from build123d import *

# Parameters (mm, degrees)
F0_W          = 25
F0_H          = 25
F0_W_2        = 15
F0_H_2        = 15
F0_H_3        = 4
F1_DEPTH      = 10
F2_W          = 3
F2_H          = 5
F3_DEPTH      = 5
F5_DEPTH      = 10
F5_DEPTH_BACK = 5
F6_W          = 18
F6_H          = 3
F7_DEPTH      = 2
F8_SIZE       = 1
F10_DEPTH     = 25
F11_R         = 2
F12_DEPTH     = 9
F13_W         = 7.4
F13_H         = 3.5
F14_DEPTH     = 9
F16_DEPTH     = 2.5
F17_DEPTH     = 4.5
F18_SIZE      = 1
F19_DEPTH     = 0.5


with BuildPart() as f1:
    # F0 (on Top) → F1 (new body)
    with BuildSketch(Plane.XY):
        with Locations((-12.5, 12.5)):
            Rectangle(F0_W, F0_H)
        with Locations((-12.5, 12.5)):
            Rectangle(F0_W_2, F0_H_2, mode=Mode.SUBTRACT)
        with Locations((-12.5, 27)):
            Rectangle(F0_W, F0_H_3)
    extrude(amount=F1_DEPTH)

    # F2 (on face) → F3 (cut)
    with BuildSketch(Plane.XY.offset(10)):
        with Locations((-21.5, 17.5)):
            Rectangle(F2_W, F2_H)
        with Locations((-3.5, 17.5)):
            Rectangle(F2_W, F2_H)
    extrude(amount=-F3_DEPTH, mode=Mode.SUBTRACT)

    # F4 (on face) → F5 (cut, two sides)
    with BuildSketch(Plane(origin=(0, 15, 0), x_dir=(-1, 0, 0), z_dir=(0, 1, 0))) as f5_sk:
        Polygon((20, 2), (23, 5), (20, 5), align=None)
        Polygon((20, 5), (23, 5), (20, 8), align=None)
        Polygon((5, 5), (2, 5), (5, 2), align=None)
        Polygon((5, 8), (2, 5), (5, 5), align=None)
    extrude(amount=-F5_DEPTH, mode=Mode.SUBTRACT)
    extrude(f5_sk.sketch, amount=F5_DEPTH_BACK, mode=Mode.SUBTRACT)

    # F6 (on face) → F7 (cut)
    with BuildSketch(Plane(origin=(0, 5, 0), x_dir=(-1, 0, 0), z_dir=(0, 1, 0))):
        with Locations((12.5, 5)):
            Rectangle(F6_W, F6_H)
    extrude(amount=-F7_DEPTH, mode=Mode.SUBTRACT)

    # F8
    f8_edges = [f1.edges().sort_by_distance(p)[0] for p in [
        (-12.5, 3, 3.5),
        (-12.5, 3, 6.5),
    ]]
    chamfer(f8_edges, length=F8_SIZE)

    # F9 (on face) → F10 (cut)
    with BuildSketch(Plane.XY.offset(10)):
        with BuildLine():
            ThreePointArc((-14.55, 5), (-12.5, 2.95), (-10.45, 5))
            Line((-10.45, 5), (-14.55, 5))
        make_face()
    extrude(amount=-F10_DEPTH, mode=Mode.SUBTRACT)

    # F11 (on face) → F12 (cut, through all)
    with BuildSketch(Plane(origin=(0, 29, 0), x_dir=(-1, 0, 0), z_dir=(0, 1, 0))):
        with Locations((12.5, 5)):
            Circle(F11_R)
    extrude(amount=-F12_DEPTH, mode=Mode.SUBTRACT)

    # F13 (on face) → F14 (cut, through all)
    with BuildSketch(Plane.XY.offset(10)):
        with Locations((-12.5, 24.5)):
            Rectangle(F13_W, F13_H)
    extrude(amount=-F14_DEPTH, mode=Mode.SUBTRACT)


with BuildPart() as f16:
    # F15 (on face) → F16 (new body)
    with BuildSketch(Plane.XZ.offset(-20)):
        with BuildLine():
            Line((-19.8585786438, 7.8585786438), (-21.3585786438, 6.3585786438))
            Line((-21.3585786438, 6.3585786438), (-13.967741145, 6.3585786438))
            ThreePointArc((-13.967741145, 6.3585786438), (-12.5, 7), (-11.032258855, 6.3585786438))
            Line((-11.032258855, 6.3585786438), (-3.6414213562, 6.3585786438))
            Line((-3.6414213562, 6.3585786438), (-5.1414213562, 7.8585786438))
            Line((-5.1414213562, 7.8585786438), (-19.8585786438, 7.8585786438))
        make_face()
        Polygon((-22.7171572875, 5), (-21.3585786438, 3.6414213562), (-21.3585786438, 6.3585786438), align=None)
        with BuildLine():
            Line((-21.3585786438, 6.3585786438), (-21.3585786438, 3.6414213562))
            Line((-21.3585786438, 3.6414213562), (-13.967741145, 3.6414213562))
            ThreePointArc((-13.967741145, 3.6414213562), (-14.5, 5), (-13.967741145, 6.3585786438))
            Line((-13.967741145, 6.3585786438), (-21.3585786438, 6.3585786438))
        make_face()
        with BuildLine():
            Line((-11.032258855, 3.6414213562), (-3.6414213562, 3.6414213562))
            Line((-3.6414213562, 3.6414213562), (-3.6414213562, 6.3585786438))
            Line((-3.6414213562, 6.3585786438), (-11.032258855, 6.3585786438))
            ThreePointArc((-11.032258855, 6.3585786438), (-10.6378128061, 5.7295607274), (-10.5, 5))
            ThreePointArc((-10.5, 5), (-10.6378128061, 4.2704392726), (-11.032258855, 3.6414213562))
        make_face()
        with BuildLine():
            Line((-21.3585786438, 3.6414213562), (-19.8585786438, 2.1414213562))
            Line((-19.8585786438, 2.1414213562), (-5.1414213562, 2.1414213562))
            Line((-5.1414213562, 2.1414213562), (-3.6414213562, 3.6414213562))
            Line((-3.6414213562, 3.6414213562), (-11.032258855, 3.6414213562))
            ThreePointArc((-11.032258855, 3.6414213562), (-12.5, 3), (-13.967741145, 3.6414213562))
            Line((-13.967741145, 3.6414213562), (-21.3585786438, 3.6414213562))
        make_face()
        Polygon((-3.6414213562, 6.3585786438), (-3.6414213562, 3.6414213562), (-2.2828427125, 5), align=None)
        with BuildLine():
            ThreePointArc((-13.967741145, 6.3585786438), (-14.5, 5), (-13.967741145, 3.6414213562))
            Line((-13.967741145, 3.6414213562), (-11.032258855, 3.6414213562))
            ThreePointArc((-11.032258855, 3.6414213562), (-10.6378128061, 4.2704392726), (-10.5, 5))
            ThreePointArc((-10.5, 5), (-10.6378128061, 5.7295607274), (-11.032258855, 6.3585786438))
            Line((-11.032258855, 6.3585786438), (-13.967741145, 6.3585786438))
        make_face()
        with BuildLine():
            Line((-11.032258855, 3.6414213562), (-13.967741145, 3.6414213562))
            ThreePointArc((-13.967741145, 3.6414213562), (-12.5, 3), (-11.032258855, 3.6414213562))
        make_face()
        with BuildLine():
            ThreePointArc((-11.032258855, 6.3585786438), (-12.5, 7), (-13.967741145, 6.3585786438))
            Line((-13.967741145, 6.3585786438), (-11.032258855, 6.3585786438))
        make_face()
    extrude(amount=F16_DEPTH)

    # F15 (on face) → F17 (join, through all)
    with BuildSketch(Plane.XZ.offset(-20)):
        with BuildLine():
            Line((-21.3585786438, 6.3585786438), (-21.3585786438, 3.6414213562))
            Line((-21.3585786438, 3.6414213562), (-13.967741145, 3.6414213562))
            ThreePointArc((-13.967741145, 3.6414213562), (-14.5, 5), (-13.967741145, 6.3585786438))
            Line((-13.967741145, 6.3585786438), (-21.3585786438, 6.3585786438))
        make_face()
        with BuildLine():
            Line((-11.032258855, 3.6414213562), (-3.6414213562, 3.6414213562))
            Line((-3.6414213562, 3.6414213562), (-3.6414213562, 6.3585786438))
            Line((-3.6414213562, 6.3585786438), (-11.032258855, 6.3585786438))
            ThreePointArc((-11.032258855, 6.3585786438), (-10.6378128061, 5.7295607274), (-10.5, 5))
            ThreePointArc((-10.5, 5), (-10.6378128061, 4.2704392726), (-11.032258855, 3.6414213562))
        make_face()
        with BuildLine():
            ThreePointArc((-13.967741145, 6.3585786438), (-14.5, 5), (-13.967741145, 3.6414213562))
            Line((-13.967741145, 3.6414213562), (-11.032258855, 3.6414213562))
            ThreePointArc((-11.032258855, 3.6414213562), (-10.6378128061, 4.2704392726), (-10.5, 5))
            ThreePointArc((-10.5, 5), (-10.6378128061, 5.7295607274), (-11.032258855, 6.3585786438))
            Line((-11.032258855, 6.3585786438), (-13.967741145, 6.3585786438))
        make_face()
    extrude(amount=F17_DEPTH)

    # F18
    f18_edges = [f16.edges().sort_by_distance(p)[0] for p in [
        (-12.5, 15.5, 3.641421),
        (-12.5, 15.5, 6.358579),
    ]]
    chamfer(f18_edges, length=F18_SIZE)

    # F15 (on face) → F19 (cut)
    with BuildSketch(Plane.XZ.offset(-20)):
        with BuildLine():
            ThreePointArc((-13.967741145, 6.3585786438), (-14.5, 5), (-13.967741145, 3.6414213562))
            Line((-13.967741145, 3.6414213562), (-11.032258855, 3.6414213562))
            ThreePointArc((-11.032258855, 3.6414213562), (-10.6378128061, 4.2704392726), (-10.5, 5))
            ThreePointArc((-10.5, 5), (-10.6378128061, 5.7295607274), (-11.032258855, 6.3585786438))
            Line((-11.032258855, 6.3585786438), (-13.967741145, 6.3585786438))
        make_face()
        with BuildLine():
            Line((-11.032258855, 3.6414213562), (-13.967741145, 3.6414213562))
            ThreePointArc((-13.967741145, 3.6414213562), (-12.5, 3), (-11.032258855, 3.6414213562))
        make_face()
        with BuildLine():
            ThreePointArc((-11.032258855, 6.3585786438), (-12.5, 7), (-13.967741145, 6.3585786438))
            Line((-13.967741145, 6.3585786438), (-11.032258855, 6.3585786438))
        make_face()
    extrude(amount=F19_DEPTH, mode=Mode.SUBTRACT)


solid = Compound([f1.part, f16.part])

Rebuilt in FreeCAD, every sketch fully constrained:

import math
import FreeCAD as App
import Part
import Sketcher
from FreeCAD import Vector


def edges_at(feature, points):
    """Names of the edges that pass closest to the given points."""
    edges = feature.Shape.Edges
    near = lambda p: min(range(len(edges)), key=lambda i: edges[i].distToShape(Part.Vertex(*p))[0])
    return sorted({f"Edge{near(p) + 1}" for p in points})

doc = App.newDocument("Part")
body = doc.addObject("PartDesign::Body", "Body")

# Sketch on XY plane
sketch1 = doc.addObject("Sketcher::SketchObject", "Sketch")
body.addObject(sketch1)
sketch1.AttachmentSupport = (doc.XY_Plane, [""])
sketch1.MapMode = "FlatFace"
sketch1.addGeometry(Part.LineSegment(Vector(-25, 0, 0), Vector(0, 0, 0)), False)
sketch1.addGeometry(Part.LineSegment(Vector(0, 0, 0), Vector(0, 29, 0)), False)
sketch1.addGeometry(Part.LineSegment(Vector(0, 29, 0), Vector(-25, 29, 0)), False)
sketch1.addGeometry(Part.LineSegment(Vector(-25, 29, 0), Vector(-25, 0, 0)), False)
sketch1.addGeometry(Part.LineSegment(Vector(-5, 5, 0), Vector(-20, 5, 0)), False)
sketch1.addGeometry(Part.LineSegment(Vector(-20, 5, 0), Vector(-20, 20, 0)), False)
sketch1.addGeometry(Part.LineSegment(Vector(-20, 20, 0), Vector(-5, 20, 0)), False)
sketch1.addGeometry(Part.LineSegment(Vector(-5, 20, 0), Vector(-5, 5, 0)), False)
sketch1.addConstraint(Sketcher.Constraint("Coincident", 0, 2, 1, 1))
sketch1.addConstraint(Sketcher.Constraint("Coincident", 1, 2, 2, 1))
sketch1.addConstraint(Sketcher.Constraint("Coincident", 2, 2, 3, 1))
sketch1.addConstraint(Sketcher.Constraint("Coincident", 3, 2, 0, 1))
sketch1.addConstraint(Sketcher.Constraint("Coincident", 4, 2, 5, 1))
sketch1.addConstraint(Sketcher.Constraint("Coincident", 5, 2, 6, 1))
sketch1.addConstraint(Sketcher.Constraint("Coincident", 6, 2, 7, 1))
sketch1.addConstraint(Sketcher.Constraint("Coincident", 7, 2, 4, 1))
sketch1.addConstraint(Sketcher.Constraint("Horizontal", 0))
sketch1.addConstraint(Sketcher.Constraint("Vertical", 1))
sketch1.addConstraint(Sketcher.Constraint("Horizontal", 2))
sketch1.addConstraint(Sketcher.Constraint("Vertical", 3))
sketch1.addConstraint(Sketcher.Constraint("Horizontal", 4))
sketch1.addConstraint(Sketcher.Constraint("Vertical", 5))
sketch1.addConstraint(Sketcher.Constraint("Horizontal", 6))
sketch1.addConstraint(Sketcher.Constraint("Vertical", 7))
sketch1.addConstraint(Sketcher.Constraint("Coincident", 0, 2, -1, 1))
sketch1.addConstraint(Sketcher.Constraint("Equal", 6, 5))
sketch1.addConstraint(Sketcher.Constraint("DistanceX", 0, 1, 0, 2, 25.0))
sketch1.addConstraint(Sketcher.Constraint("DistanceX", 4, 2, 4, 1, 15.0))
sketch1.addConstraint(Sketcher.Constraint("DistanceY", 1, 1, 1, 2, 29.0))
sketch1.addConstraint(Sketcher.Constraint("DistanceX", 4, 2, -1, 1, 20.0))
sketch1.addConstraint(Sketcher.Constraint("DistanceY", -1, 1, 4, 2, 5.0))
pad1 = doc.addObject("PartDesign::Pad", "Pad")
body.addObject(pad1)
pad1.Profile = sketch1
pad1.Length = 10

# Sketch on XY plane
sketch2 = doc.addObject("Sketcher::SketchObject", "Sketch001")
body.addObject(sketch2)
sketch2.AttachmentSupport = (doc.XY_Plane, [""])
sketch2.MapMode = "FlatFace"
sketch2.AttachmentOffset = App.Placement(Vector(0, 0, 10), App.Rotation())
sketch2.addGeometry(Part.LineSegment(Vector(-23, 20, 0), Vector(-23, 15, 0)), False)
sketch2.addGeometry(Part.LineSegment(Vector(-23, 15, 0), Vector(-20, 15, 0)), False)
sketch2.addGeometry(Part.LineSegment(Vector(-20, 15, 0), Vector(-20, 20, 0)), False)
sketch2.addGeometry(Part.LineSegment(Vector(-20, 20, 0), Vector(-23, 20, 0)), False)
sketch2.addGeometry(Part.LineSegment(Vector(-5, 20, 0), Vector(-5, 15, 0)), False)
sketch2.addGeometry(Part.LineSegment(Vector(-5, 15, 0), Vector(-2, 15, 0)), False)
sketch2.addGeometry(Part.LineSegment(Vector(-2, 15, 0), Vector(-2, 20, 0)), False)
sketch2.addGeometry(Part.LineSegment(Vector(-2, 20, 0), Vector(-5, 20, 0)), False)
sketch2.addConstraint(Sketcher.Constraint("Coincident", 0, 2, 1, 1))
sketch2.addConstraint(Sketcher.Constraint("Coincident", 1, 2, 2, 1))
sketch2.addConstraint(Sketcher.Constraint("Coincident", 2, 2, 3, 1))
sketch2.addConstraint(Sketcher.Constraint("Coincident", 3, 2, 0, 1))
sketch2.addConstraint(Sketcher.Constraint("Coincident", 4, 2, 5, 1))
sketch2.addConstraint(Sketcher.Constraint("Coincident", 5, 2, 6, 1))
sketch2.addConstraint(Sketcher.Constraint("Coincident", 6, 2, 7, 1))
sketch2.addConstraint(Sketcher.Constraint("Coincident", 7, 2, 4, 1))
sketch2.addConstraint(Sketcher.Constraint("Vertical", 0))
sketch2.addConstraint(Sketcher.Constraint("Horizontal", 1))
sketch2.addConstraint(Sketcher.Constraint("Vertical", 2))
sketch2.addConstraint(Sketcher.Constraint("Horizontal", 3))
sketch2.addConstraint(Sketcher.Constraint("Vertical", 4))
sketch2.addConstraint(Sketcher.Constraint("Horizontal", 5))
sketch2.addConstraint(Sketcher.Constraint("Vertical", 6))
sketch2.addConstraint(Sketcher.Constraint("Horizontal", 7))
sketch2.addConstraint(Sketcher.Constraint("Horizontal", 1, 2, 4, 2))
sketch2.addConstraint(Sketcher.Constraint("Horizontal", 3, 2, 6, 2))
sketch2.addConstraint(Sketcher.Constraint("Equal", 3, 5))
sketch2.addConstraint(Sketcher.Constraint("DistanceX", 1, 1, 1, 2, 3.0))
sketch2.addConstraint(Sketcher.Constraint("DistanceY", 0, 2, 0, 1, 5.0))
sketch2.addConstraint(Sketcher.Constraint("DistanceX", 0, 2, -1, 1, 23.0))
sketch2.addConstraint(Sketcher.Constraint("DistanceY", -1, 1, 0, 2, 15.0))
sketch2.addConstraint(Sketcher.Constraint("DistanceX", 4, 2, -1, 1, 5.0))
pocket1 = doc.addObject("PartDesign::Pocket", "Pocket")
body.addObject(pocket1)
pocket1.Profile = sketch2
pocket1.Length = 5

# Sketch on XZ plane
sketch3 = doc.addObject("Sketcher::SketchObject", "Sketch002")
body.addObject(sketch3)
sketch3.AttachmentSupport = (doc.XZ_Plane, [""])
sketch3.MapMode = "FlatFace"
sketch3.AttachmentOffset = App.Placement(Vector(0, 0, -15), App.Rotation())
sketch3.addGeometry(Part.LineSegment(Vector(-20, 2, 0), Vector(-23, 5, 0)), False)
sketch3.addGeometry(Part.LineSegment(Vector(-23, 5, 0), Vector(-20, 8, 0)), False)
sketch3.addGeometry(Part.LineSegment(Vector(-20, 8, 0), Vector(-20, 2, 0)), False)
sketch3.addGeometry(Part.LineSegment(Vector(-2, 5, 0), Vector(-5, 2, 0)), False)
sketch3.addGeometry(Part.LineSegment(Vector(-5, 2, 0), Vector(-5, 8, 0)), False)
sketch3.addGeometry(Part.LineSegment(Vector(-5, 8, 0), Vector(-2, 5, 0)), False)
sketch3.addConstraint(Sketcher.Constraint("Coincident", 0, 2, 1, 1))
sketch3.addConstraint(Sketcher.Constraint("Coincident", 1, 2, 2, 1))
sketch3.addConstraint(Sketcher.Constraint("Coincident", 2, 2, 0, 1))
sketch3.addConstraint(Sketcher.Constraint("Coincident", 3, 2, 4, 1))
sketch3.addConstraint(Sketcher.Constraint("Coincident", 4, 2, 5, 1))
sketch3.addConstraint(Sketcher.Constraint("Coincident", 5, 2, 3, 1))
sketch3.addConstraint(Sketcher.Constraint("Vertical", 2))
sketch3.addConstraint(Sketcher.Constraint("Vertical", 4))
sketch3.addConstraint(Sketcher.Constraint("Perpendicular", 0, 1))
sketch3.addConstraint(Sketcher.Constraint("Parallel", 1, 3))
sketch3.addConstraint(Sketcher.Constraint("Perpendicular", 3, 5))
sketch3.addConstraint(Sketcher.Constraint("Horizontal", 2, 2, 3, 2))
sketch3.addConstraint(Sketcher.Constraint("Horizontal", 1, 2, 4, 2))
sketch3.addConstraint(Sketcher.Constraint("Horizontal", 0, 2, 5, 2))
sketch3.addConstraint(Sketcher.Constraint("DistanceY", 2, 2, 2, 1, 6.0))
sketch3.addConstraint(Sketcher.Constraint("DistanceX", 0, 2, -1, 1, 23.0))
sketch3.addConstraint(Sketcher.Constraint("DistanceY", -1, 1, 0, 2, 5.0))
sketch3.addConstraint(Sketcher.Constraint("DistanceX", 3, 2, -1, 1, 5.0))
pocket2 = doc.addObject("PartDesign::Pocket", "Pocket001")
body.addObject(pocket2)
pocket2.Profile = sketch3
pocket2.Type = "TwoLengths"
pocket2.Length = 10
pocket2.Length2 = 5
pocket2.Reversed = True

# Sketch on XZ plane
sketch4 = doc.addObject("Sketcher::SketchObject", "Sketch003")
body.addObject(sketch4)
sketch4.AttachmentSupport = (doc.XZ_Plane, [""])
sketch4.MapMode = "FlatFace"
sketch4.AttachmentOffset = App.Placement(Vector(0, 0, -5), App.Rotation())
sketch4.addGeometry(Part.LineSegment(Vector(-3.5, 6.5, 0), Vector(-3.5, 3.5, 0)), False)
sketch4.addGeometry(Part.LineSegment(Vector(-3.5, 3.5, 0), Vector(-21.5, 3.5, 0)), False)
sketch4.addGeometry(Part.LineSegment(Vector(-21.5, 3.5, 0), Vector(-21.5, 6.5, 0)), False)
sketch4.addGeometry(Part.LineSegment(Vector(-21.5, 6.5, 0), Vector(-3.5, 6.5, 0)), False)
sketch4.addConstraint(Sketcher.Constraint("Coincident", 0, 2, 1, 1))
sketch4.addConstraint(Sketcher.Constraint("Coincident", 1, 2, 2, 1))
sketch4.addConstraint(Sketcher.Constraint("Coincident", 2, 2, 3, 1))
sketch4.addConstraint(Sketcher.Constraint("Coincident", 3, 2, 0, 1))
sketch4.addConstraint(Sketcher.Constraint("Vertical", 0))
sketch4.addConstraint(Sketcher.Constraint("Horizontal", 1))
sketch4.addConstraint(Sketcher.Constraint("Vertical", 2))
sketch4.addConstraint(Sketcher.Constraint("Horizontal", 3))
sketch4.addConstraint(Sketcher.Constraint("DistanceX", 1, 2, 1, 1, 18.0))
sketch4.addConstraint(Sketcher.Constraint("DistanceY", 0, 2, 0, 1, 3.0))
sketch4.addConstraint(Sketcher.Constraint("DistanceX", 0, 2, -1, 1, 3.5))
sketch4.addConstraint(Sketcher.Constraint("DistanceY", -1, 1, 0, 2, 3.5))
pocket3 = doc.addObject("PartDesign::Pocket", "Pocket002")
body.addObject(pocket3)
pocket3.Profile = sketch4
pocket3.Length = 2
pocket3.Reversed = True
doc.recompute()

chamfer = doc.addObject("PartDesign::Chamfer", "Chamfer")
body.addObject(chamfer)
chamfer.Base = (pocket3, edges_at(pocket3, [(-12.5, 3, 3.5), (-12.5, 3, 6.5)]))
chamfer.Size = 1

# Sketch on XY plane
sketch5 = doc.addObject("Sketcher::SketchObject", "Sketch004")
body.addObject(sketch5)
sketch5.AttachmentSupport = (doc.XY_Plane, [""])
sketch5.MapMode = "FlatFace"
sketch5.AttachmentOffset = App.Placement(Vector(0, 0, 10), App.Rotation())
sketch5.addGeometry(Part.ArcOfCircle(Part.Circle(Vector(-12.5, 5, 0), Vector(0, 0, 1), 2.05), math.radians(180), math.radians(360)), False)
sketch5.addGeometry(Part.LineSegment(Vector(-10.45, 5, 0), Vector(-14.55, 5, 0)), False)
sketch5.addConstraint(Sketcher.Constraint("Coincident", 0, 1, 1, 2))
sketch5.addConstraint(Sketcher.Constraint("Coincident", 1, 1, 0, 2))
sketch5.addConstraint(Sketcher.Constraint("Horizontal", 1))
sketch5.addConstraint(Sketcher.Constraint("Radius", 0, 2.05))
sketch5.addConstraint(Sketcher.Constraint("DistanceY", -1, 1, 0, 3, 5.0))
sketch5.addConstraint(Sketcher.Constraint("DistanceY", -1, 1, 0, 1, 5.0))
sketch5.addConstraint(Sketcher.Constraint("DistanceX", 0, 3, -1, 1, 12.5))
pocket4 = doc.addObject("PartDesign::Pocket", "Pocket003")
body.addObject(pocket4)
pocket4.Profile = sketch5
pocket4.Length = 25

# Sketch on XZ plane
sketch6 = doc.addObject("Sketcher::SketchObject", "Sketch005")
body.addObject(sketch6)
sketch6.AttachmentSupport = (doc.XZ_Plane, [""])
sketch6.MapMode = "FlatFace"
sketch6.AttachmentOffset = App.Placement(Vector(0, 0, -29), App.Rotation())
sketch6.addGeometry(Part.Circle(Vector(-12.5, 5, 0), Vector(0, 0, 1), 2), False)
sketch6.addConstraint(Sketcher.Constraint("Diameter", 0, 4.0))
sketch6.addConstraint(Sketcher.Constraint("DistanceY", -1, 1, 0, 3, 5.0))
sketch6.addConstraint(Sketcher.Constraint("DistanceX", 0, 3, -1, 1, 12.5))
pocket5 = doc.addObject("PartDesign::Pocket", "Pocket004")
body.addObject(pocket5)
pocket5.Profile = sketch6
pocket5.Length = 9
pocket5.Reversed = True

# Sketch on XY plane
sketch7 = doc.addObject("Sketcher::SketchObject", "Sketch006")
body.addObject(sketch7)
sketch7.AttachmentSupport = (doc.XY_Plane, [""])
sketch7.MapMode = "FlatFace"
sketch7.AttachmentOffset = App.Placement(Vector(0, 0, 10), App.Rotation())
sketch7.addGeometry(Part.LineSegment(Vector(-16.2, 26.25, 0), Vector(-16.2, 22.75, 0)), False)
sketch7.addGeometry(Part.LineSegment(Vector(-16.2, 22.75, 0), Vector(-8.8, 22.75, 0)), False)
sketch7.addGeometry(Part.LineSegment(Vector(-8.8, 22.75, 0), Vector(-8.8, 26.25, 0)), False)
sketch7.addGeometry(Part.LineSegment(Vector(-8.8, 26.25, 0), Vector(-16.2, 26.25, 0)), False)
sketch7.addConstraint(Sketcher.Constraint("Coincident", 0, 2, 1, 1))
sketch7.addConstraint(Sketcher.Constraint("Coincident", 1, 2, 2, 1))
sketch7.addConstraint(Sketcher.Constraint("Coincident", 2, 2, 3, 1))
sketch7.addConstraint(Sketcher.Constraint("Coincident", 3, 2, 0, 1))
sketch7.addConstraint(Sketcher.Constraint("Vertical", 0))
sketch7.addConstraint(Sketcher.Constraint("Horizontal", 1))
sketch7.addConstraint(Sketcher.Constraint("Vertical", 2))
sketch7.addConstraint(Sketcher.Constraint("Horizontal", 3))
sketch7.addConstraint(Sketcher.Constraint("DistanceX", 1, 1, 1, 2, 7.4))
sketch7.addConstraint(Sketcher.Constraint("DistanceY", 0, 2, 0, 1, 3.5))
sketch7.addConstraint(Sketcher.Constraint("DistanceX", 0, 2, -1, 1, 16.2))
sketch7.addConstraint(Sketcher.Constraint("DistanceY", -1, 1, 0, 2, 22.75))
pocket6 = doc.addObject("PartDesign::Pocket", "Pocket005")
body.addObject(pocket6)
pocket6.Profile = sketch7
pocket6.Length = 9
body2 = doc.addObject("PartDesign::Body", "Body001")

# Sketch on XZ plane
sketch8 = doc.addObject("Sketcher::SketchObject", "Sketch007")
body2.addObject(sketch8)
sketch8.AttachmentSupport = (doc.getObject("XZ_Plane001"), [""])
sketch8.MapMode = "FlatFace"
sketch8.AttachmentOffset = App.Placement(Vector(0, 0, -20), App.Rotation())
sketch8.addGeometry(Part.LineSegment(Vector(-19.858579, 7.858579, 0), Vector(-21.358579, 6.358579, 0)), False)
sketch8.addGeometry(Part.LineSegment(Vector(-21.358579, 6.358579, 0), Vector(-22.717157, 5, 0)), False)
sketch8.addGeometry(Part.LineSegment(Vector(-22.717157, 5, 0), Vector(-21.358579, 3.641421, 0)), False)
sketch8.addGeometry(Part.LineSegment(Vector(-21.358579, 3.641421, 0), Vector(-19.858579, 2.141421, 0)), False)
sketch8.addGeometry(Part.LineSegment(Vector(-19.858579, 2.141421, 0), Vector(-5.141421, 2.141421, 0)), False)
sketch8.addGeometry(Part.LineSegment(Vector(-5.141421, 2.141421, 0), Vector(-3.641421, 3.641421, 0)), False)
sketch8.addGeometry(Part.LineSegment(Vector(-3.641421, 3.641421, 0), Vector(-2.282843, 5, 0)), False)
sketch8.addGeometry(Part.LineSegment(Vector(-2.282843, 5, 0), Vector(-3.641421, 6.358579, 0)), False)
sketch8.addGeometry(Part.LineSegment(Vector(-3.641421, 6.358579, 0), Vector(-5.141421, 7.858579, 0)), False)
sketch8.addGeometry(Part.LineSegment(Vector(-5.141421, 7.858579, 0), Vector(-19.858579, 7.858579, 0)), False)
sketch8.addConstraint(Sketcher.Constraint("Coincident", 0, 2, 1, 1))
sketch8.addConstraint(Sketcher.Constraint("Coincident", 1, 2, 2, 1))
sketch8.addConstraint(Sketcher.Constraint("Coincident", 2, 2, 3, 1))
sketch8.addConstraint(Sketcher.Constraint("Coincident", 3, 2, 4, 1))
sketch8.addConstraint(Sketcher.Constraint("Coincident", 4, 2, 5, 1))
sketch8.addConstraint(Sketcher.Constraint("Coincident", 5, 2, 6, 1))
sketch8.addConstraint(Sketcher.Constraint("Coincident", 6, 2, 7, 1))
sketch8.addConstraint(Sketcher.Constraint("Coincident", 7, 2, 8, 1))
sketch8.addConstraint(Sketcher.Constraint("Coincident", 8, 2, 9, 1))
sketch8.addConstraint(Sketcher.Constraint("Coincident", 9, 2, 0, 1))
sketch8.addConstraint(Sketcher.Constraint("Horizontal", 4))
sketch8.addConstraint(Sketcher.Constraint("Horizontal", 9))
sketch8.addConstraint(Sketcher.Constraint("Parallel", 0, 1))
sketch8.addConstraint(Sketcher.Constraint("Perpendicular", 1, 2))
sketch8.addConstraint(Sketcher.Constraint("Parallel", 2, 3))
sketch8.addConstraint(Sketcher.Constraint("Perpendicular", 3, 5))
sketch8.addConstraint(Sketcher.Constraint("Parallel", 5, 6))
sketch8.addConstraint(Sketcher.Constraint("Perpendicular", 6, 7))
sketch8.addConstraint(Sketcher.Constraint("Parallel", 7, 8))
sketch8.addConstraint(Sketcher.Constraint("Horizontal", 2, 2, 5, 2))
sketch8.addConstraint(Sketcher.Constraint("Horizontal", 1, 2, 6, 2))
sketch8.addConstraint(Sketcher.Constraint("Horizontal", 0, 2, 7, 2))
sketch8.addConstraint(Sketcher.Constraint("Vertical", 0, 2, 2, 2))
sketch8.addConstraint(Sketcher.Constraint("Vertical", 5, 2, 7, 2))
sketch8.addConstraint(Sketcher.Constraint("Vertical", 4, 2, 8, 2))
sketch8.addConstraint(Sketcher.Constraint("DistanceY", -1, 1, 1, 2, 5.0))
sketch8.addConstraint(Sketcher.Constraint("DistanceX", 2, 2, 3, 2, 1.5))
sketch8.addConstraint(Sketcher.Constraint("Distance", 1, 1.92132))
sketch8.addConstraint(Sketcher.Constraint("DistanceX", 4, 1, 4, 2, 14.717157))
sketch8.addConstraint(Sketcher.Constraint("DistanceX", 0, 2, -1, 1, 21.358579))
pad2 = doc.addObject("PartDesign::Pad", "Pad001")
body2.addObject(pad2)
pad2.Profile = sketch8
pad2.Length = 2.5

# Sketch on XZ plane
sketch9 = doc.addObject("Sketcher::SketchObject", "Sketch008")
body2.addObject(sketch9)
sketch9.AttachmentSupport = (doc.getObject("XZ_Plane001"), [""])
sketch9.MapMode = "FlatFace"
sketch9.AttachmentOffset = App.Placement(Vector(0, 0, -20), App.Rotation())
sketch9.addGeometry(Part.LineSegment(Vector(-21.358579, 6.358579, 0), Vector(-21.358579, 3.641421, 0)), False)
sketch9.addGeometry(Part.LineSegment(Vector(-21.358579, 3.641421, 0), Vector(-3.641421, 3.641421, 0)), False)
sketch9.addGeometry(Part.LineSegment(Vector(-3.641421, 3.641421, 0), Vector(-3.641421, 6.358579, 0)), False)
sketch9.addGeometry(Part.LineSegment(Vector(-3.641421, 6.358579, 0), Vector(-21.358579, 6.358579, 0)), False)
sketch9.addConstraint(Sketcher.Constraint("Coincident", 0, 2, 1, 1))
sketch9.addConstraint(Sketcher.Constraint("Coincident", 1, 2, 2, 1))
sketch9.addConstraint(Sketcher.Constraint("Coincident", 2, 2, 3, 1))
sketch9.addConstraint(Sketcher.Constraint("Coincident", 3, 2, 0, 1))
sketch9.addConstraint(Sketcher.Constraint("Vertical", 0))
sketch9.addConstraint(Sketcher.Constraint("Horizontal", 1))
sketch9.addConstraint(Sketcher.Constraint("Vertical", 2))
sketch9.addConstraint(Sketcher.Constraint("Horizontal", 3))
sketch9.addConstraint(Sketcher.Constraint("DistanceX", 1, 1, 1, 2, 17.717157))
sketch9.addConstraint(Sketcher.Constraint("DistanceY", 0, 2, 0, 1, 2.717157))
sketch9.addConstraint(Sketcher.Constraint("DistanceX", 0, 2, -1, 1, 21.358579))
sketch9.addConstraint(Sketcher.Constraint("DistanceY", -1, 1, 0, 2, 3.641421))
pad3 = doc.addObject("PartDesign::Pad", "Pad002")
body2.addObject(pad3)
pad3.Profile = sketch9
pad3.Length = 4.5
doc.recompute()

chamfer2 = doc.addObject("PartDesign::Chamfer", "Chamfer001")
body2.addObject(chamfer2)
chamfer2.Base = (pad3, edges_at(pad3, [(-12.5, 15.5, 3.641), (-12.5, 15.5, 6.359)]))
chamfer2.Size = 1

# Sketch on XZ plane
sketch10 = doc.addObject("Sketcher::SketchObject", "Sketch009")
body2.addObject(sketch10)
sketch10.AttachmentSupport = (doc.getObject("XZ_Plane001"), [""])
sketch10.MapMode = "FlatFace"
sketch10.AttachmentOffset = App.Placement(Vector(0, 0, -20), App.Rotation())
sketch10.addGeometry(Part.ArcOfCircle(Part.Circle(Vector(-12.5, 5, 0), Vector(0, 0, 1), 2), math.radians(137.211867), math.radians(222.788133)), False)
sketch10.addGeometry(Part.ArcOfCircle(Part.Circle(Vector(-12.5, 5, 0), Vector(0, 0, 1), 2), math.radians(-137.211867), math.radians(-42.788133)), False)
sketch10.addGeometry(Part.ArcOfCircle(Part.Circle(Vector(-12.5, 5, 0), Vector(0, 0, 1), 2), math.radians(-42.788133), math.radians(0)), False)
sketch10.addGeometry(Part.ArcOfCircle(Part.Circle(Vector(-12.5, 5, 0), Vector(0, 0, 1), 2), math.radians(0), math.radians(42.788133)), False)
sketch10.addGeometry(Part.ArcOfCircle(Part.Circle(Vector(-12.5, 5, 0), Vector(0, 0, 1), 2), math.radians(42.788133), math.radians(137.211867)), False)
sketch10.addConstraint(Sketcher.Constraint("Tangent", 0, 2, 1, 1))
sketch10.addConstraint(Sketcher.Constraint("Tangent", 1, 2, 2, 1))
sketch10.addConstraint(Sketcher.Constraint("Tangent", 2, 2, 3, 1))
sketch10.addConstraint(Sketcher.Constraint("Tangent", 3, 2, 4, 1))
sketch10.addConstraint(Sketcher.Constraint("Tangent", 4, 2, 0, 1))
sketch10.addConstraint(Sketcher.Constraint("Coincident", 2, 3, 0, 3))
sketch10.addConstraint(Sketcher.Constraint("Horizontal", 0, 2, 1, 2))
sketch10.addConstraint(Sketcher.Constraint("Horizontal", 4, 3, 2, 2))
sketch10.addConstraint(Sketcher.Constraint("Horizontal", 3, 2, 4, 2))
sketch10.addConstraint(Sketcher.Constraint("Vertical", 1, 2, 3, 2))
sketch10.addConstraint(Sketcher.Constraint("Radius", 0, 2.0))
sketch10.addConstraint(Sketcher.Constraint("DistanceY", -1, 1, 0, 3, 5.0))
sketch10.addConstraint(Sketcher.Constraint("DistanceX", 0, 3, -1, 1, 12.5))
sketch10.addConstraint(Sketcher.Constraint("DistanceX", 0, 2, -1, 1, 13.967741))
pocket7 = doc.addObject("PartDesign::Pocket", "Pocket006")
body2.addObject(pocket7)
pocket7.Profile = sketch10
pocket7.Length = 0.5
pocket7.Reversed = True

doc.recompute()
